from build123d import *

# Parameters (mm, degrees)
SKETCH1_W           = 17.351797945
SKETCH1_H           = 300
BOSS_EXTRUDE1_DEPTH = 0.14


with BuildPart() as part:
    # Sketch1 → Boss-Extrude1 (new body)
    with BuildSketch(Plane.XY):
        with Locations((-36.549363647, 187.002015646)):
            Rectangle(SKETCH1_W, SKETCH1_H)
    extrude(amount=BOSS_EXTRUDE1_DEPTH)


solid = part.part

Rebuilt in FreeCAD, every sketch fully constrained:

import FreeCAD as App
import Part
import Sketcher
from FreeCAD import Vector

doc = App.newDocument("Part")
body = doc.addObject("PartDesign::Body", "Body")

# Sketch on XY plane
sketch1 = body.newObject("Sketcher::SketchObject", "Sketch")
sketch1.AttachmentSupport = (doc.getObject("XY_Plane"), [""])
sketch1.MapMode = "FlatFace"
sketch1.addGeometry([
    Part.LineSegment(Vector(-45, 337, 0), Vector(-45, 37, 0)),
    Part.LineSegment(Vector(-45, 37, 0), Vector(-28, 37, 0)),
    Part.LineSegment(Vector(-28, 37, 0), Vector(-28, 337, 0)),
    Part.LineSegment(Vector(-28, 337, 0), Vector(-45, 337, 0)),
], False)
sketch1.addConstraint([
    Sketcher.Constraint("Coincident", 0, 2, 1, 1),
    Sketcher.Constraint("Coincident", 1, 2, 2, 1),
    Sketcher.Constraint("Coincident", 2, 2, 3, 1),
    Sketcher.Constraint("Coincident", 3, 2, 0, 1),
    Sketcher.Constraint("Vertical", 0),
    Sketcher.Constraint("Horizontal", 1),
    Sketcher.Constraint("Vertical", 2),
    Sketcher.Constraint("Horizontal", 3),
    Sketcher.Constraint("DistanceY", 0, 2, 0, 1, 300.0),
    Sketcher.Constraint("DistanceX", 1, 1, 1, 2, 17.351798),
    Sketcher.Constraint("DistanceX", 0, 2, -1, 1, 45.225263),
    Sketcher.Constraint("DistanceY", -1, 1, 0, 2, 37.002016),
])
pad1 = body.newObject("PartDesign::Pad", "Pad")
pad1.Profile = sketch1
pad1.Length = 0.14

doc.recompute()
